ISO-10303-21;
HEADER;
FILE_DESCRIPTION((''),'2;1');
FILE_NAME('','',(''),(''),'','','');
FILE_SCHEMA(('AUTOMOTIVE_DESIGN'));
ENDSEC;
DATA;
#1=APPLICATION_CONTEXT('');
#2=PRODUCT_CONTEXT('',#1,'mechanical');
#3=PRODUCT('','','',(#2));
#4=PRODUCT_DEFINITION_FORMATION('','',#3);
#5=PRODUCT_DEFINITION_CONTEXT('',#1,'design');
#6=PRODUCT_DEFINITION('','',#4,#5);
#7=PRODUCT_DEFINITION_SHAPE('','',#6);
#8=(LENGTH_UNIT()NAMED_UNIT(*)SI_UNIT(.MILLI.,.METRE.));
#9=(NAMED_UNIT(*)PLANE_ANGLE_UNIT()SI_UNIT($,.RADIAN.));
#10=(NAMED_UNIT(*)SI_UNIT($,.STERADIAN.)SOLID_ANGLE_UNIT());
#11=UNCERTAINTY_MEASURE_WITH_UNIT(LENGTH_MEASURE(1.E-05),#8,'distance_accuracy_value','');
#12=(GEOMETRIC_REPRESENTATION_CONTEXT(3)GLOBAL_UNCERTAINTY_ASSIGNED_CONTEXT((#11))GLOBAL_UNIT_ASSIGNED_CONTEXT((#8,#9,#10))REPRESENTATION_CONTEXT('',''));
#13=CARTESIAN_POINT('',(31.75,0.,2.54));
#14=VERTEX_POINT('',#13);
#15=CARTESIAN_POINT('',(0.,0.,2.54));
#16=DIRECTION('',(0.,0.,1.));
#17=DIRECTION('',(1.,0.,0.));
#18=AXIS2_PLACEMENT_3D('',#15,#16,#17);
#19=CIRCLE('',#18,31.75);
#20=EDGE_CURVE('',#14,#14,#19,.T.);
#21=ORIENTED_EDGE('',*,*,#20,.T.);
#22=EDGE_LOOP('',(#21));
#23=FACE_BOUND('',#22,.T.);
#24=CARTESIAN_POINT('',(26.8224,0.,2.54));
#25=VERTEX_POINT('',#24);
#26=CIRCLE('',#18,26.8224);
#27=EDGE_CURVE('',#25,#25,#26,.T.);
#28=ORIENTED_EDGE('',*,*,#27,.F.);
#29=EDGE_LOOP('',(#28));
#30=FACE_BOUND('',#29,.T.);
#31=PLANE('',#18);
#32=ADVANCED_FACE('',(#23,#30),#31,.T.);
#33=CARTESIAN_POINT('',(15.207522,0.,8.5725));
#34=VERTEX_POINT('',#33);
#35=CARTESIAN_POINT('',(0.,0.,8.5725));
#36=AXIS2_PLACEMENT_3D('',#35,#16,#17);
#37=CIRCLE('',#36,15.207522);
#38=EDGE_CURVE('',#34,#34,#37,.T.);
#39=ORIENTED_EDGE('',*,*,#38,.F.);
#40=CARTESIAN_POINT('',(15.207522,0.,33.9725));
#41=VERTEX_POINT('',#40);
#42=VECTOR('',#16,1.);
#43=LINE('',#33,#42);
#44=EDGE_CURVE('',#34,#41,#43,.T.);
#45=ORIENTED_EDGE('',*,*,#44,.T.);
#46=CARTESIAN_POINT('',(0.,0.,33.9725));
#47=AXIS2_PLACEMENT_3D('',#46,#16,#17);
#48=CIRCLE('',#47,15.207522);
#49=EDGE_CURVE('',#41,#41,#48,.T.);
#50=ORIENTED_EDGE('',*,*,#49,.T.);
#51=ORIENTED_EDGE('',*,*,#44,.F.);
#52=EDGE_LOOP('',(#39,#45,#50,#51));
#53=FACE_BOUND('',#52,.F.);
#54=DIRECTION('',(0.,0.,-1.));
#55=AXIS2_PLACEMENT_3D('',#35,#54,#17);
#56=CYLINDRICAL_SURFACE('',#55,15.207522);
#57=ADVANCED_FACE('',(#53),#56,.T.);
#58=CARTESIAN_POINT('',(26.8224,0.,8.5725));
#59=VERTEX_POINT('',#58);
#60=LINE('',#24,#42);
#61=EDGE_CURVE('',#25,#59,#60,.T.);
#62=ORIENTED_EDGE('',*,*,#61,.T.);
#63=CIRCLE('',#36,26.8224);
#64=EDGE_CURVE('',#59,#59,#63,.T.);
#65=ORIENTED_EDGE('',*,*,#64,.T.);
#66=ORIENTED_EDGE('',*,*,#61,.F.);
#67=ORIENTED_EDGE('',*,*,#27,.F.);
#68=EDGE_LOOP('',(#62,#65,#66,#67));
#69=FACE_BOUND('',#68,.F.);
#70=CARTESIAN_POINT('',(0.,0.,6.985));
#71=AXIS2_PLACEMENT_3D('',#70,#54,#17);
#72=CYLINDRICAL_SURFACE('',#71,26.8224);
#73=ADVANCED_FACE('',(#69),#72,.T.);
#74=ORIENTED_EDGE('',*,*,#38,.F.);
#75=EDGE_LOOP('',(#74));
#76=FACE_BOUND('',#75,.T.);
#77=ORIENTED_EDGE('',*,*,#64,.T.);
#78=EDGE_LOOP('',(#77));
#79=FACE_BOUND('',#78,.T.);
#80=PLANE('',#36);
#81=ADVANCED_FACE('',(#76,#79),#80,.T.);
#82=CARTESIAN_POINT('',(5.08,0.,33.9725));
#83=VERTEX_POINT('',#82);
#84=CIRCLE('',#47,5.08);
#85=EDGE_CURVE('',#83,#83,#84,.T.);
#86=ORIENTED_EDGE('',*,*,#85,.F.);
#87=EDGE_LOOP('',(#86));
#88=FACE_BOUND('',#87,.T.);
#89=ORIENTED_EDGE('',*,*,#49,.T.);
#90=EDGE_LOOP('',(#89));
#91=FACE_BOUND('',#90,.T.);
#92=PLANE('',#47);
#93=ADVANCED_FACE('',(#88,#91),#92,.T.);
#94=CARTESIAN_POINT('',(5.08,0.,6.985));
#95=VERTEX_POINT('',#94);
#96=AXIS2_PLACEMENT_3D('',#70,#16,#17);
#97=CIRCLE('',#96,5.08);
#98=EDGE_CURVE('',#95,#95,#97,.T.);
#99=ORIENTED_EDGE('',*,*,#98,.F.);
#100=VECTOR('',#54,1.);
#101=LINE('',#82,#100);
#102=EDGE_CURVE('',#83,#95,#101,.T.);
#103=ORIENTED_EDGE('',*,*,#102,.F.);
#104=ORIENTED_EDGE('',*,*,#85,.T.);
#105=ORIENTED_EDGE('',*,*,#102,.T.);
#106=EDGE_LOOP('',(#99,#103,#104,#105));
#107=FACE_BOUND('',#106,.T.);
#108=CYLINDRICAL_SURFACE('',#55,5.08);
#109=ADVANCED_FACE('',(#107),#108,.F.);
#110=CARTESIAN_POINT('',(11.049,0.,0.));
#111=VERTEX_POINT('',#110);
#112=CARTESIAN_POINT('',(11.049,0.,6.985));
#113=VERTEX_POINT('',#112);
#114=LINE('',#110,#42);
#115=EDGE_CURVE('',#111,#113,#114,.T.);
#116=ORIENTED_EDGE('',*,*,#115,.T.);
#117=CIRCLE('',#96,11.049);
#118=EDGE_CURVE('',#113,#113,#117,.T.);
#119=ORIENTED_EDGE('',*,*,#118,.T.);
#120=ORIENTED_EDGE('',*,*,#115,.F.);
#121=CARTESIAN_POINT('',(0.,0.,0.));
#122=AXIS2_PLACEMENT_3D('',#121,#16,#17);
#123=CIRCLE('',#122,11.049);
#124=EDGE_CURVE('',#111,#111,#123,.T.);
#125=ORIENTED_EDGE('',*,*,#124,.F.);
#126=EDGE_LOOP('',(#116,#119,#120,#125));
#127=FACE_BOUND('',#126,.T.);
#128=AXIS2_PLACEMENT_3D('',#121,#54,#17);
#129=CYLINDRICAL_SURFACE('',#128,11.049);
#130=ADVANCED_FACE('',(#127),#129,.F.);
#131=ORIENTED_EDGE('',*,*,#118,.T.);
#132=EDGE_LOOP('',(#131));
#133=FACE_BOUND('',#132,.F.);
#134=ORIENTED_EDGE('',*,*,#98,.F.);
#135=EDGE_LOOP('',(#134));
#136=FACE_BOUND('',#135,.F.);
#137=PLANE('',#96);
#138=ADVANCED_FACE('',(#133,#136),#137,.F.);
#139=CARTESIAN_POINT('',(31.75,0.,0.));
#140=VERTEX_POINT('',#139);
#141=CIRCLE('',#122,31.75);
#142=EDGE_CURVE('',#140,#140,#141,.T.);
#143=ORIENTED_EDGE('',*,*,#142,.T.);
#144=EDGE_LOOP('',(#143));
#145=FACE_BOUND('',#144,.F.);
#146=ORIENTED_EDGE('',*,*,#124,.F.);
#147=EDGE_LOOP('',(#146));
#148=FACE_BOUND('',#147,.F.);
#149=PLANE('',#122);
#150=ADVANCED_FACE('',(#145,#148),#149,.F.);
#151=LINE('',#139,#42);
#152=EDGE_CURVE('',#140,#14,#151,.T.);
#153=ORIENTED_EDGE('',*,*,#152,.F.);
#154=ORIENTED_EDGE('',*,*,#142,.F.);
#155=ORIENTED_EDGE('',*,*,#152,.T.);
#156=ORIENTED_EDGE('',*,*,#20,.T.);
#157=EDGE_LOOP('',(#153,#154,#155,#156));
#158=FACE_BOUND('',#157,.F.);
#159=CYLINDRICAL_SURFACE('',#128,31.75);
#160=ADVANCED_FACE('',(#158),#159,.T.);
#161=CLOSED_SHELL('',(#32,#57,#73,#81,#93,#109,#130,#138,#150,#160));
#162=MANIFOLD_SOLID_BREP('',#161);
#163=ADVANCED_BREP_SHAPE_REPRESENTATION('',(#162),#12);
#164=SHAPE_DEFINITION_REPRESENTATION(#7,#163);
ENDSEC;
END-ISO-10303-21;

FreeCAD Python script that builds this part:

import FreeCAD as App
import Part
import Sketcher
from FreeCAD import Vector
Q = App.Units.Quantity

doc = App.newDocument("Part")
params = doc.addObject("Spreadsheet::Sheet", "Params")
for row, (alias, value) in enumerate([
    ("sketch1_diameter", "0.87 in"),
    ("sketch1_diameter2", "2.112 in"),
    ("pad1_length", "0.275 in"),
    ("sketch2_diameter", "2.5 in"),
    ("sketch2_diameter2", "2.112 in"),
    ("pad2_length", "0.1 in"),
    ("sketch3_diameter", "0.4 in"),
    ("sketch3_diameter2", "2.112 in"),
    ("pad3_length", "0.0625 in"),
    ("sketch4_diameter", "0.4 in"),
    ("pad4_length", "1 in"),
], start=1):
    params.set(f"A{row}", alias)
    params.set(f"B{row}", "=" + value)
    params.setAlias(f"B{row}", alias)

body = doc.addObject("PartDesign::Body", "Body")

# Sketch on XY plane
sketch1 = body.newObject("Sketcher::SketchObject", "Sketch")
sketch1.AttachmentSupport = (doc.getObject("XY_Plane"), [""])
sketch1.MapMode = "FlatFace"
sketch1.addGeometry([
    Part.Circle(Vector(0, 0, 0), Vector(0, 0, 1), 26.8224),
    Part.Circle(Vector(0, 0, 0), Vector(0, 0, 1), 11.049),
], False)
sketch1.addConstraint([
    Sketcher.Constraint("Coincident", 0, 3, -1, 1),
    Sketcher.Constraint("Coincident", 1, 3, -1, 1),
    Sketcher.Constraint("Diameter", 1, Q("0.87 in")),
    Sketcher.Constraint("Diameter", 0, Q("2.112 in")),
])
sketch1.setExpression("Constraints[2]", "Params.sketch1_diameter")
sketch1.setExpression("Constraints[3]", "Params.sketch1_diameter2")
pad1 = body.newObject("PartDesign::Pad", "Pad")
pad1.Profile = sketch1
pad1.setExpression("Length", "Params.pad1_length")

# Sketch on XY plane
sketch2 = body.newObject("Sketcher::SketchObject", "Sketch001")
sketch2.AttachmentSupport = (doc.getObject("XY_Plane"), [""])
sketch2.MapMode = "FlatFace"
sketch2.addGeometry([
    Part.Circle(Vector(0, 0, 0), Vector(0, 0, 1), 31.75),
    Part.Circle(Vector(0, 0, 0), Vector(0, 0, 1), 26.8224),
], False)
sketch2.addConstraint([
    Sketcher.Constraint("Coincident", 0, 3, -1, 1),
    Sketcher.Constraint("Coincident", 1, 3, -1, 1),
    Sketcher.Constraint("Diameter", 0, Q("2.5 in")),
    Sketcher.Constraint("Diameter", 1, Q("2.112 in")),
])
sketch2.setExpression("Constraints[2]", "Params.sketch2_diameter")
sketch2.setExpression("Constraints[3]", "Params.sketch2_diameter2")
pad2 = body.newObject("PartDesign::Pad", "Pad001")
pad2.Profile = sketch2
pad2.setExpression("Length", "Params.pad2_length")

# Sketch on XY plane
sketch3 = body.newObject("Sketcher::SketchObject", "Sketch002")
sketch3.AttachmentSupport = (doc.getObject("XY_Plane"), [""])
sketch3.MapMode = "FlatFace"
sketch3.AttachmentOffset = App.Placement(Vector(0, 0, 0.275 * 25.4), App.Rotation())
sketch3.addGeometry([
    Part.Circle(Vector(0, 0, 0), Vector(0, 0, 1), 26.8224),
    Part.Circle(Vector(0, 0, 0), Vector(0, 0, 1), 5.08),
], False)
sketch3.addConstraint([
    Sketcher.Constraint("Coincident", 0, 3, -1, 1),
    Sketcher.Constraint("Coincident", 1, 3, -1, 1),
    Sketcher.Constraint("Diameter", 1, Q("0.4 in")),
    Sketcher.Constraint("Diameter", 0, Q("2.112 in")),
])
sketch3.setExpression("Constraints[2]", "Params.sketch3_diameter")
sketch3.setExpression("Constraints[3]", "Params.sketch3_diameter2")
pad3 = body.newObject("PartDesign::Pad", "Pad002")
pad3.Profile = sketch3
pad3.setExpression("Length", "Params.pad3_length")

# Sketch on XY plane
sketch4 = body.newObject("Sketcher::SketchObject", "Sketch003")
sketch4.AttachmentSupport = (doc.getObject("XY_Plane"), [""])
sketch4.MapMode = "FlatFace"
sketch4.AttachmentOffset = App.Placement(Vector(0, 0, 0.3375 * 25.4), App.Rotation())
sketch4.addGeometry([
    Part.Circle(Vector(0, 0, 0), Vector(0, 0, 1), 15.207522),
    Part.Circle(Vector(0, 0, 0), Vector(0, 0, 1), 5.08),
], False)
sketch4.addConstraint([
    Sketcher.Constraint("Coincident", 0, 3, -1, 1),
    Sketcher.Constraint("Coincident", 1, 3, -1, 1),
    Sketcher.Constraint("Diameter", 1, Q("0.4 in")),
    Sketcher.Constraint("Diameter", 0, Q("30.415044 mm")),
])
sketch4.setExpression("Constraints[2]", "Params.sketch4_diameter")
pad4 = body.newObject("PartDesign::Pad", "Pad003")
pad4.Profile = sketch4
pad4.setExpression("Length", "Params.pad4_length")

doc.recompute()
